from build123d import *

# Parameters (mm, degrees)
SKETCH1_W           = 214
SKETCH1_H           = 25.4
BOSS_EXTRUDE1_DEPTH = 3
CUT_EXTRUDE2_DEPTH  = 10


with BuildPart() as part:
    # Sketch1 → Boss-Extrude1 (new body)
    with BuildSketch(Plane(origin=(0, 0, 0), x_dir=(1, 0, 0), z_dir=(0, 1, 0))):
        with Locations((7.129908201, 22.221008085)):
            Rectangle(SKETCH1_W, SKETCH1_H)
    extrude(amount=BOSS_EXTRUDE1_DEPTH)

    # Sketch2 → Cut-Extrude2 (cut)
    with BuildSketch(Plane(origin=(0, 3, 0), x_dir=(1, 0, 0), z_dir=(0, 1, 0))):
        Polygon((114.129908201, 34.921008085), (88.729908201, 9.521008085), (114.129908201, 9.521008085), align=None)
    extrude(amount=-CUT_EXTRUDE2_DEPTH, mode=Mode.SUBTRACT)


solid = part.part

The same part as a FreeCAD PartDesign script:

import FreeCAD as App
import Part
import Sketcher
from FreeCAD import Vector
Q = App.Units.Quantity


def add_polygon(sketch, points):
    """Adds a closed chain of lines whose ends are joined by coincident constraints."""
    first, n = sketch.GeometryCount, len(points)
    for a, b in zip(points, points[1:] + points[:1]):
        sketch.addGeometry(Part.LineSegment(App.Vector(*a, 0), App.Vector(*b, 0)), False)
    for i in range(n):
        sketch.addConstraint(Sketcher.Constraint("Coincident", first + i, 2, first + (i + 1) % n, 1))

doc = App.newDocument("Part")
body = doc.addObject("PartDesign::Body", "Body")

# Sketch on XZ plane
sketch1 = body.newObject("Sketcher::SketchObject", "Sketch")
sketch1.AttachmentSupport = (doc.getObject("XZ_Plane"), [""])
sketch1.MapMode = "FlatFace"
add_polygon(sketch1, [(-99.870092, -34.921008), (-99.870092, -9.521008), (114.129908, -9.521008), (114.129908, -34.921008)])  # lines 0-3
sketch1.addConstraint([
    Sketcher.Constraint("Vertical", 0),
    Sketcher.Constraint("Horizontal", 1),
    Sketcher.Constraint("Vertical", 2),
    Sketcher.Constraint("Horizontal", 3),
    Sketcher.Constraint("DistanceX", 1, 1, 1, 2, Q("214 mm")),
    Sketcher.Constraint("DistanceY", 0, 1, 0, 2, Q("25.4 mm")),
    Sketcher.Constraint("DistanceX", 0, 2, -1, 1, Q("99.870092 mm")),
    Sketcher.Constraint("DistanceY", 0, 2, -1, 1, Q("9.521008 mm")),
])
pad1 = body.newObject("PartDesign::Pad", "Pad")
pad1.Profile = sketch1
pad1.Length = 3
pad1.Reversed = True

# Sketch on XZ plane
sketch2 = body.newObject("Sketcher::SketchObject", "Sketch001")
sketch2.AttachmentSupport = (doc.getObject("XZ_Plane"), [""])
sketch2.MapMode = "FlatFace"
sketch2.AttachmentOffset = App.Placement(Vector(0, 0, -3), App.Rotation())
add_polygon(sketch2, [(114.129908, -34.921008), (88.729908, -9.521008), (114.129908, -9.521008)])  # lines 0-2
sketch2.addConstraint([
    Sketcher.Constraint("Horizontal", 1),
    Sketcher.Constraint("Vertical", 2),
    Sketcher.Constraint("Equal", 1, 2),
    Sketcher.Constraint("DistanceX", 1, 1, 1, 2, Q("25.4 mm")),
    Sketcher.Constraint("DistanceX", -1, 1, 0, 2, Q("88.729908 mm")),
    Sketcher.Constraint("DistanceY", 0, 2, -1, 1, Q("9.521008 mm")),
])
pocket1 = body.newObject("PartDesign::Pocket", "Pocket")
pocket1.Profile = sketch2
pocket1.Length = 10
pocket1.Reversed = True

doc.recompute()
